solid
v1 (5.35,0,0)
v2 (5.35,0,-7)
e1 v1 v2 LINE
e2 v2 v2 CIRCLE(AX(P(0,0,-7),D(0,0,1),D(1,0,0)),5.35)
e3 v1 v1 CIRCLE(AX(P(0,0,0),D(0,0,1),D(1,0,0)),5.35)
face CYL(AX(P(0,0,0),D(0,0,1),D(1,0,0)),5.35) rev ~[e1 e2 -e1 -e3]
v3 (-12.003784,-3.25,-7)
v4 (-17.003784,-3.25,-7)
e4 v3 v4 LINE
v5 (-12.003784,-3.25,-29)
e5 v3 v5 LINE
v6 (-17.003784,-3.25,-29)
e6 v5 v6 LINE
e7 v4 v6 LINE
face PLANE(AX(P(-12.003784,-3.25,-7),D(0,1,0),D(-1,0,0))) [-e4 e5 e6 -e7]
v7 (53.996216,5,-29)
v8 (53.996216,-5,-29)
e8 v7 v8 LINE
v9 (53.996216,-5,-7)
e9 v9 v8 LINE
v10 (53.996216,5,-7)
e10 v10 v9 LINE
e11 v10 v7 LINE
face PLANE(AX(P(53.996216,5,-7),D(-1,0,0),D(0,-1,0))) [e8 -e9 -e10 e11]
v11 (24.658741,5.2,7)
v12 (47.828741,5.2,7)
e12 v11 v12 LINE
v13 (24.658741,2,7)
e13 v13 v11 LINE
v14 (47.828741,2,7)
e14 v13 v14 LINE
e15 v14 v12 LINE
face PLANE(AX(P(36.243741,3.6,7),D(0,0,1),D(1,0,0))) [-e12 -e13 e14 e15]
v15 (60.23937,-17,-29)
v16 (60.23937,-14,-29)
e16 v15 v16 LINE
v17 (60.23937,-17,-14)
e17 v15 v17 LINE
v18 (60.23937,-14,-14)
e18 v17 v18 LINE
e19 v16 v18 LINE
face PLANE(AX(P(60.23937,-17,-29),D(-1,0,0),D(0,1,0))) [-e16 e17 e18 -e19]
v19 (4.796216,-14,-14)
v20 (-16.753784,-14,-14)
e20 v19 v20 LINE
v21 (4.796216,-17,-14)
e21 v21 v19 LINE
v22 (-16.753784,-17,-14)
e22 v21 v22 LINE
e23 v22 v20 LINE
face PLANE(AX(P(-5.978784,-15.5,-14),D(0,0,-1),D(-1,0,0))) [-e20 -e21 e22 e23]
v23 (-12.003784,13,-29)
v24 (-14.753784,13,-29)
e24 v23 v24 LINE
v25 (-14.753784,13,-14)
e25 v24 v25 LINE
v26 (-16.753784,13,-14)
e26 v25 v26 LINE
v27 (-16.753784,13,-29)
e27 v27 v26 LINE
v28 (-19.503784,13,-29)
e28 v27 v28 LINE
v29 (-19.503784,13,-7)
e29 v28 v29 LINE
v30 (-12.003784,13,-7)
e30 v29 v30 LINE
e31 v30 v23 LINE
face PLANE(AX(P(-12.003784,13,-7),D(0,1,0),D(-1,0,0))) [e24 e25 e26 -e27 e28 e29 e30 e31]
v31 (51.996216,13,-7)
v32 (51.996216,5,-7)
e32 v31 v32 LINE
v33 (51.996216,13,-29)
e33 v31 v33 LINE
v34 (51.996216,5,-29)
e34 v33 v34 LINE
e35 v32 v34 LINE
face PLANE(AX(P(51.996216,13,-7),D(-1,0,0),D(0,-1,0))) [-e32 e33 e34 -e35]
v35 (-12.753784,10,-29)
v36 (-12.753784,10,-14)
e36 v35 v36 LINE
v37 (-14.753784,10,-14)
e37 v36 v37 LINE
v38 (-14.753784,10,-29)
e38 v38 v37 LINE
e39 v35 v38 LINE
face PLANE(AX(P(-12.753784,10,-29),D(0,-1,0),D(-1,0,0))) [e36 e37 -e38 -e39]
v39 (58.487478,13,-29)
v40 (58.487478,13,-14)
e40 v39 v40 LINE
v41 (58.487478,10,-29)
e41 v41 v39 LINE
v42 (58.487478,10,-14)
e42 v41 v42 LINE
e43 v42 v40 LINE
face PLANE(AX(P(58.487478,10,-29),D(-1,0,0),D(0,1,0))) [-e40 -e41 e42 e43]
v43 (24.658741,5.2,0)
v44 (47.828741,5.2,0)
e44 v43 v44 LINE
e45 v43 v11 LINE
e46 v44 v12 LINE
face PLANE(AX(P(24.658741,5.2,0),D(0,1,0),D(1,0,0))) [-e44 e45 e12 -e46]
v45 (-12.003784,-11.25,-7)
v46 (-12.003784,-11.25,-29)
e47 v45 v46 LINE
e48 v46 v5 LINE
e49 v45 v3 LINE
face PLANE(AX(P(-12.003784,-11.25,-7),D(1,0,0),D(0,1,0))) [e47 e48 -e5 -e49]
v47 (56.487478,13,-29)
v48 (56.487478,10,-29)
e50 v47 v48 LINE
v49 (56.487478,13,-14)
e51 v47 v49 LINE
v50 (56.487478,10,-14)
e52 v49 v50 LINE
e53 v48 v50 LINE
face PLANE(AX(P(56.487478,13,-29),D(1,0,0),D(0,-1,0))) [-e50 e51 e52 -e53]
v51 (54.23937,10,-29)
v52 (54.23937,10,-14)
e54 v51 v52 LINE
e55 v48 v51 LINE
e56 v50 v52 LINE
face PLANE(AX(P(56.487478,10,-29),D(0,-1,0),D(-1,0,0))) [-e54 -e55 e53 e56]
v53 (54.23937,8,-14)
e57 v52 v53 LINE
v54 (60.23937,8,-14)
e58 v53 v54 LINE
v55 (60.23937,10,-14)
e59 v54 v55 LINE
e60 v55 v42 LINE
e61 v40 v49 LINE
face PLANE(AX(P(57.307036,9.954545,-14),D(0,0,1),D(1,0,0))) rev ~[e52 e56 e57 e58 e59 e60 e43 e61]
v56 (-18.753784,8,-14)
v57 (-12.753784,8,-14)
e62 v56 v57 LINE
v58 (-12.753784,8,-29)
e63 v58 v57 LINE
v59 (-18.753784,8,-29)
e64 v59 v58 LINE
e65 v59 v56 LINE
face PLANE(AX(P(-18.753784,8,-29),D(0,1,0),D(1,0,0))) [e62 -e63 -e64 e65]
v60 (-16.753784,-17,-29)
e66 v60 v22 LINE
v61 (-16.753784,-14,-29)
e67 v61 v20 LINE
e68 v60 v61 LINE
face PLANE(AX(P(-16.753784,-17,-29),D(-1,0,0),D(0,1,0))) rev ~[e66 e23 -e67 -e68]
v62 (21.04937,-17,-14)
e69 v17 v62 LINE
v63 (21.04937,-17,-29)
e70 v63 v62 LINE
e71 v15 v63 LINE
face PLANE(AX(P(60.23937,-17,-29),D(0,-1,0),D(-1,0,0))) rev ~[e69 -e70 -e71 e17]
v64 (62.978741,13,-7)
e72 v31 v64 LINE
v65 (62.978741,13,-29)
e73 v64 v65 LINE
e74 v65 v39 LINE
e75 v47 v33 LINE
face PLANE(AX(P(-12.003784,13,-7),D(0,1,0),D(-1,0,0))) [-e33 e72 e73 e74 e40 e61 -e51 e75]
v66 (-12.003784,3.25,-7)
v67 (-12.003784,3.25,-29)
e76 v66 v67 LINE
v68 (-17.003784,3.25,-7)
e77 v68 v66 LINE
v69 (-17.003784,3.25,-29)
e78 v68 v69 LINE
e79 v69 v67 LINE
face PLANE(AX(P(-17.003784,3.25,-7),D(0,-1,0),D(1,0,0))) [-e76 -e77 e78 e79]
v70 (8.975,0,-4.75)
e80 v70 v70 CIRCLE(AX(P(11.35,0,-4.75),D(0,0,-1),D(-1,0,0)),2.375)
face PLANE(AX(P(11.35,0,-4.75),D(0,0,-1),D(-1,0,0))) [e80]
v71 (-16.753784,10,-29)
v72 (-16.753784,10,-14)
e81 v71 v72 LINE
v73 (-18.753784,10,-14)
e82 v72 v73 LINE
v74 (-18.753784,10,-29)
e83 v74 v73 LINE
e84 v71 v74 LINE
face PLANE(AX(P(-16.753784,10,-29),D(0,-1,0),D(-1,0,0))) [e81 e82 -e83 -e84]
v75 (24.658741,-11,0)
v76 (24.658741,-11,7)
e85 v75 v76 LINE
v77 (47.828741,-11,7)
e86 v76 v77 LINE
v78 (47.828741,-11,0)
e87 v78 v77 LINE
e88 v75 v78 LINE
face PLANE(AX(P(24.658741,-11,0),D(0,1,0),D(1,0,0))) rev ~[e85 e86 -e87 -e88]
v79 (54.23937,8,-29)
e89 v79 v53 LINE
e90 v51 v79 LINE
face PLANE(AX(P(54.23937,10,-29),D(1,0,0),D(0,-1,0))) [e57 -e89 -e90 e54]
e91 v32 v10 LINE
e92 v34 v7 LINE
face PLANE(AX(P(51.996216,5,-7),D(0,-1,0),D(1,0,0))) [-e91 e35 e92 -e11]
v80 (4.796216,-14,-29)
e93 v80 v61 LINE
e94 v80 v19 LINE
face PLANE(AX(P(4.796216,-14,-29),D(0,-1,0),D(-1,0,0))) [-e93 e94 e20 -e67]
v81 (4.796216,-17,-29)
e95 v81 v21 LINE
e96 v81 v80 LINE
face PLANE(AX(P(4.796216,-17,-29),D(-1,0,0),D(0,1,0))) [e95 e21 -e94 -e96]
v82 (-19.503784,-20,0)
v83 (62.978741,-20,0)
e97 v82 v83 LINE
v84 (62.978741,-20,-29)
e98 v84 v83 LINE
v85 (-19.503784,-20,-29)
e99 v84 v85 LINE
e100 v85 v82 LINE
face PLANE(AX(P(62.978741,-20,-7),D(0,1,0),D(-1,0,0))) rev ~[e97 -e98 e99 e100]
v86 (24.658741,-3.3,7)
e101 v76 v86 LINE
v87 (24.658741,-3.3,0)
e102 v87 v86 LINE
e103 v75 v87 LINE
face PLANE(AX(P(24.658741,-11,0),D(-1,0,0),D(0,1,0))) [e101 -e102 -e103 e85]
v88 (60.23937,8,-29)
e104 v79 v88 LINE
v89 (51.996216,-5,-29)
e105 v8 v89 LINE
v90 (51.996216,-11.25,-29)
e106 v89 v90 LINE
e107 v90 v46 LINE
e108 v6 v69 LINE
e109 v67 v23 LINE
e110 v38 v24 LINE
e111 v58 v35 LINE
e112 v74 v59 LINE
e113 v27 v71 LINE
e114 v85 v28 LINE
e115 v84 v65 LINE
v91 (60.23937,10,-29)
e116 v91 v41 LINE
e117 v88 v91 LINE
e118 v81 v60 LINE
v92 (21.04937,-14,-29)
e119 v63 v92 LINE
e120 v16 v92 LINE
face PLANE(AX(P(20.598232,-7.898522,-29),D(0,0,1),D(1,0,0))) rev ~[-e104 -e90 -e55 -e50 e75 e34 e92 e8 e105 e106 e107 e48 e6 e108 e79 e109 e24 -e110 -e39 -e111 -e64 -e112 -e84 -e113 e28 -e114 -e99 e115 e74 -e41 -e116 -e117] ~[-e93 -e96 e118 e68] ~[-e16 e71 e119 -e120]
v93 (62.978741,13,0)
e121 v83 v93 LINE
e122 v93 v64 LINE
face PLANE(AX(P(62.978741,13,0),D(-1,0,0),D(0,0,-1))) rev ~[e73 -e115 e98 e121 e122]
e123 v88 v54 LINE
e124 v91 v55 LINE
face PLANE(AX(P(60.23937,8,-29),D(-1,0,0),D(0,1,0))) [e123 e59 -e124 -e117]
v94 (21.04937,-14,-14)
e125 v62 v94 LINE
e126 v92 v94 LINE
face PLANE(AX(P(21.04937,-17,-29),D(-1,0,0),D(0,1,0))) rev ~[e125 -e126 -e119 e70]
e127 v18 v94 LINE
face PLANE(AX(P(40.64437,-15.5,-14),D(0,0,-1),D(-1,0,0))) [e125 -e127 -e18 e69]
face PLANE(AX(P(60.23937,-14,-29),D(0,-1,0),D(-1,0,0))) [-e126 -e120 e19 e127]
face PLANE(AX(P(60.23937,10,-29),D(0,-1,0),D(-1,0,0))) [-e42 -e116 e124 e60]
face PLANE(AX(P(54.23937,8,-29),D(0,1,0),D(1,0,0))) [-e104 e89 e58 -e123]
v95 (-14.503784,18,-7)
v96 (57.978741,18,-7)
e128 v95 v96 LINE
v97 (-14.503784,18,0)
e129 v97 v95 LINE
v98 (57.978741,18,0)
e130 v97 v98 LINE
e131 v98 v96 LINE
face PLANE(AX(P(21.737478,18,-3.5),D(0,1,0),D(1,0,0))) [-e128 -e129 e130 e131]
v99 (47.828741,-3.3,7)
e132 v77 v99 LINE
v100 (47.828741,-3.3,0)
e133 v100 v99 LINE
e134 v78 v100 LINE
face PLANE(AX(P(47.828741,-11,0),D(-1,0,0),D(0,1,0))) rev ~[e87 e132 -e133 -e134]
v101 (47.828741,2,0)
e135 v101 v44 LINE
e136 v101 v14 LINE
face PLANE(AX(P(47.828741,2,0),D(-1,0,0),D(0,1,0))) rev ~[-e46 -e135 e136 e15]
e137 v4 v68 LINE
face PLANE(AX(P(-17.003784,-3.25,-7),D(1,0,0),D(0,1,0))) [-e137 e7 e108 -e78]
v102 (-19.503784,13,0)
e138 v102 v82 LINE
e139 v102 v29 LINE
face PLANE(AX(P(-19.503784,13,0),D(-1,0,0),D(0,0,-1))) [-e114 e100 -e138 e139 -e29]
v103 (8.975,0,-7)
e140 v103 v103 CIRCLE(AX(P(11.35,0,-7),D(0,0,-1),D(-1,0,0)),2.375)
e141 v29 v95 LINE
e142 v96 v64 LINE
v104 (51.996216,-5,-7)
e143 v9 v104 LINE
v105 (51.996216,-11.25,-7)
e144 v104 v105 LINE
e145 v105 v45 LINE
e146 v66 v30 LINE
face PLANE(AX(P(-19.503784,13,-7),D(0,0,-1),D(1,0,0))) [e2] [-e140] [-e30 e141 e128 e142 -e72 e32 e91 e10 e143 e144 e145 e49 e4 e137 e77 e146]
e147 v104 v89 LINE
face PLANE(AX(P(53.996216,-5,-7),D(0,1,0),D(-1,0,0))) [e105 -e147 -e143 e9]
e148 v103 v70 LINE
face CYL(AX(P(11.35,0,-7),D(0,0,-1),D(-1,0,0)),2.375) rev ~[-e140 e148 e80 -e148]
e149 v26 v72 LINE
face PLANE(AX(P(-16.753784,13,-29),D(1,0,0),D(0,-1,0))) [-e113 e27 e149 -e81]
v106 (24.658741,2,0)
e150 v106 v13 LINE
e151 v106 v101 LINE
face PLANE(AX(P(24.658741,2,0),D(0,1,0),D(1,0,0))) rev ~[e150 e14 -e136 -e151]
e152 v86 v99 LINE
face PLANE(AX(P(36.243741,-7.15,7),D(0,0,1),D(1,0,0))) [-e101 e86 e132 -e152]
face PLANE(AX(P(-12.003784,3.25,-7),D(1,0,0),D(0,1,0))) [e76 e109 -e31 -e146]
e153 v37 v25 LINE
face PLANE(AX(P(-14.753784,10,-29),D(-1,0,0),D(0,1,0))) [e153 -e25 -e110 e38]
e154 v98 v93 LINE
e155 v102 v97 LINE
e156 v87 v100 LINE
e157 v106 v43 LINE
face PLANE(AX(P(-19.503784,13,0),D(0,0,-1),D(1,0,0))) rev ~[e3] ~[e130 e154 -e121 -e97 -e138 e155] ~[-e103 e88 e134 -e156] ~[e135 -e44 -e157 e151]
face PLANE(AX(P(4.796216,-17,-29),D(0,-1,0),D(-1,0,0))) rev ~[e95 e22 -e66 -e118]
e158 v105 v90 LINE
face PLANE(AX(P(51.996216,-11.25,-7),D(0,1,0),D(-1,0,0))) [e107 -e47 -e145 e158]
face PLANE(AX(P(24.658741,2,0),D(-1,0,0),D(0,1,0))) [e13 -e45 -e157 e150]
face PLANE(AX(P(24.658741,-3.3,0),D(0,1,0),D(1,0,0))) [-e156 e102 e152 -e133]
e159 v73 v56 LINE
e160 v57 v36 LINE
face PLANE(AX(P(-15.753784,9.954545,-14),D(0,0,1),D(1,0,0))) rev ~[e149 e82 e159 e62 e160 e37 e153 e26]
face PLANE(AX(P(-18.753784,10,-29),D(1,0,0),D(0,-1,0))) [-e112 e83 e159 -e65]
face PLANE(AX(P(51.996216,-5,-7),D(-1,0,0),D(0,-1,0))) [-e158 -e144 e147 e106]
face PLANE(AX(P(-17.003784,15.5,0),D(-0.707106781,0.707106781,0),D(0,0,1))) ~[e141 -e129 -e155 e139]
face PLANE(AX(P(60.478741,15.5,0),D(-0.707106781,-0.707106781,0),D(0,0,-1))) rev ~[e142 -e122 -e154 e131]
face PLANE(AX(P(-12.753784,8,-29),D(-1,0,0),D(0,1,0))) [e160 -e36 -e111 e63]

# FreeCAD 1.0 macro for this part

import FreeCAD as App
import Part
import Sketcher

V = App.Vector
Q = App.Units.Quantity


def edges_at(feature, points):
    """Names of the edges that pass closest to the given points."""
    edges = feature.Shape.Edges
    near = lambda p: min(range(len(edges)), key=lambda i: edges[i].distToShape(Part.Vertex(*p))[0])
    return sorted({f"Edge{near(p) + 1}" for p in points})


def add_polygon(sketch, points):
    """Adds a closed chain of lines whose ends are joined by coincident constraints."""
    first, n = sketch.GeometryCount, len(points)
    for a, b in zip(points, points[1:] + points[:1]):
        sketch.addGeometry(Part.LineSegment(App.Vector(*a, 0), App.Vector(*b, 0)), False)
    for i in range(n):
        sketch.addConstraint(Sketcher.Constraint("Coincident", first + i, 2, first + (i + 1) % n, 1))

doc = App.newDocument("Part")
body = doc.addObject("PartDesign::Body", "Body")

# Sketch on XY plane
sketch1 = body.newObject("Sketcher::SketchObject", "Sketch")
sketch1.AttachmentSupport = (doc.getObject("XY_Plane"), [""])
sketch1.MapMode = "FlatFace"
add_polygon(sketch1, [(-20, -20), (63, -20), (63, 13), (-20, 13)])  # lines 0-3
sketch1.addGeometry(Part.Circle(V(0, 0, 0), V(0, 0, 1), 5), False)  # 4
sketch1.addConstraint(Sketcher.Constraint("Horizontal", 0))
sketch1.addConstraint(Sketcher.Constraint("Vertical", 1))
sketch1.addConstraint(Sketcher.Constraint("Horizontal", 2))
sketch1.addConstraint(Sketcher.Constraint("Vertical", 3))
sketch1.addConstraint(Sketcher.Constraint("Coincident", 4, 3, -1, 1))
sketch1.addConstraint(Sketcher.Constraint("Diameter", 4, Q("10.7 mm")))
sketch1.addConstraint(Sketcher.Constraint("DistanceY", 1, 1, 1, 2, Q("33 mm")))
sketch1.addConstraint(Sketcher.Constraint("DistanceY", 0, 2, -1, 1, Q("20 mm")))
sketch1.addConstraint(Sketcher.Constraint("DistanceX", 0, 1, 0, 2, Q("82.482525 mm")))
sketch1.addConstraint(Sketcher.Constraint("DistanceX", -1, 1, 0, 2, Q("62.978741 mm")))
pad1 = body.newObject("PartDesign::Pad", "Pad")
pad1.Profile = sketch1
pad1.Length = 7
pad1.Reversed = True

# Sketch on XY plane
sketch2 = body.newObject("Sketcher::SketchObject", "Sketch001")
sketch2.AttachmentSupport = (doc.getObject("XY_Plane"), [""])
sketch2.MapMode = "FlatFace"
sketch2.AttachmentOffset = App.Placement(V(0, 0, -7), App.Rotation())
sketch2.addGeometry(Part.Circle(V(11.3, 0, 0), V(0, 0, 1), 2.4), False)
sketch2.addConstraint(Sketcher.Constraint("PointOnObject", 0, 3, -1))
sketch2.addConstraint(Sketcher.Constraint("Diameter", 0, Q("4.75 mm")))
sketch2.addConstraint(Sketcher.Constraint("DistanceX", -1, 1, 0, 3, Q("11.35 mm")))
pocket1 = body.newObject("PartDesign::Pocket", "Pocket")
pocket1.Profile = sketch2
pocket1.Length = 2.25
pocket1.Reversed = True

# Sketch on XY plane
sketch3 = body.newObject("Sketcher::SketchObject", "Sketch002")
sketch3.AttachmentSupport = (doc.getObject("XY_Plane"), [""])
sketch3.MapMode = "FlatFace"
sketch3.AttachmentOffset = App.Placement(V(0, 0, -7), App.Rotation())
add_polygon(sketch3, [(-12, 13), (-12, 3.2), (-17, 3.2), (-17, -3.2), (-12, -3.2), (-12, -11.2), (52, -11.2), (52, -5), (54, -5), (54, 5), (52, 5), (52, 13), (63, 13), (63, -20), (-19.5, -20), (-19.5, 13)])  # lines 0-15
sketch3.addConstraint(Sketcher.Constraint("Vertical", 0))
sketch3.addConstraint(Sketcher.Constraint("Horizontal", 1))
sketch3.addConstraint(Sketcher.Constraint("Vertical", 2))
sketch3.addConstraint(Sketcher.Constraint("Horizontal", 3))
sketch3.addConstraint(Sketcher.Constraint("Vertical", 4))
sketch3.addConstraint(Sketcher.Constraint("Horizontal", 5))
sketch3.addConstraint(Sketcher.Constraint("Vertical", 6))
sketch3.addConstraint(Sketcher.Constraint("Horizontal", 7))
sketch3.addConstraint(Sketcher.Constraint("Vertical", 8))
sketch3.addConstraint(Sketcher.Constraint("Horizontal", 9))
sketch3.addConstraint(Sketcher.Constraint("Vertical", 10))
sketch3.addConstraint(Sketcher.Constraint("Horizontal", 11))
sketch3.addConstraint(Sketcher.Constraint("Vertical", 12))
sketch3.addConstraint(Sketcher.Constraint("Horizontal", 13))
sketch3.addConstraint(Sketcher.Constraint("Vertical", 14))
sketch3.addConstraint(Sketcher.Constraint("Horizontal", 15))
sketch3.addConstraint(Sketcher.Constraint("Symmetric", 0, 2, 3, 2, -1))
sketch3.addConstraint(Sketcher.Constraint("Symmetric", 6, 2, 9, 2, -1))
sketch3.addConstraint(Sketcher.Constraint("Horizontal", 11, 2, 14, 2))
sketch3.addConstraint(Sketcher.Constraint("Equal", 4, 10))
sketch3.addConstraint(Sketcher.Constraint("DistanceX", 1, 2, 1, 1, Q("5 mm")))
sketch3.addConstraint(Sketcher.Constraint("DistanceX", 5, 1, 5, 2, Q("64 mm")))
sketch3.addConstraint(Sketcher.Constraint("DistanceX", 7, 1, 7, 2, Q("2 mm")))
sketch3.addConstraint(Sketcher.Constraint("DistanceY", 4, 2, 4, 1, Q("8 mm")))
sketch3.addConstraint(Sketcher.Constraint("DistanceY", 8, 1, 8, 2, Q("10 mm")))
sketch3.addConstraint(Sketcher.Constraint("DistanceY", 12, 2, 12, 1, Q("33 mm")))
sketch3.addConstraint(Sketcher.Constraint("DistanceX", 15, 1, 15, 2, Q("7.5 mm")))
sketch3.addConstraint(Sketcher.Constraint("DistanceY", 2, 2, 2, 1, Q("6.5 mm")))
sketch3.addConstraint(Sketcher.Constraint("DistanceX", 11, 1, 11, 2, Q("10.982525 mm")))
sketch3.addConstraint(Sketcher.Constraint("DistanceX", -1, 1, 11, 2, Q("62.978741 mm")))
pad2 = body.newObject("PartDesign::Pad", "Pad001")
pad2.Profile = sketch3
pad2.Length = 22
pad2.Reversed = True

# Sketch on XZ plane
sketch4 = body.newObject("Sketcher::SketchObject", "Sketch003")
sketch4.AttachmentSupport = (doc.getObject("XZ_Plane"), [""])
sketch4.MapMode = "FlatFace"
sketch4.AttachmentOffset = App.Placement(V(0, 0, -13), App.Rotation())
add_polygon(sketch4, [(-20, -7), (-20, 0), (63, 0), (63, -7)])  # lines 0-3
sketch4.addConstraint(Sketcher.Constraint("Vertical", 0))
sketch4.addConstraint(Sketcher.Constraint("Horizontal", 1))
sketch4.addConstraint(Sketcher.Constraint("Vertical", 2))
sketch4.addConstraint(Sketcher.Constraint("Horizontal", 3))
sketch4.addConstraint(Sketcher.Constraint("PointOnObject", 0, 2, -1))
sketch4.addConstraint(Sketcher.Constraint("DistanceY", 0, 1, 0, 2, Q("7 mm")))
sketch4.addConstraint(Sketcher.Constraint("DistanceX", 1, 1, 1, 2, Q("82.482525 mm")))
sketch4.addConstraint(Sketcher.Constraint("DistanceX", -1, 1, 1, 2, Q("62.978741 mm")))
pad3 = body.newObject("PartDesign::Pad", "Pad002")
pad3.Profile = sketch4
pad3.Length = 5
pad3.Reversed = True
doc.recompute()

chamfer = body.newObject("PartDesign::Chamfer", "Chamfer")
chamfer.Base = (pad3, edges_at(pad3, [(62.979, 18, -3.5), (-19.504, 18, -3.5)]))
chamfer.Size = 5

# Sketch on XY plane
sketch5 = body.newObject("Sketcher::SketchObject", "Sketch004")
sketch5.AttachmentSupport = (doc.getObject("XY_Plane"), [""])
sketch5.MapMode = "FlatFace"
sketch5.AttachmentOffset = App.Placement(V(0, 0, -29), App.Rotation())
add_polygon(sketch5, [(58.5, 10), (60.2, 10), (60.2, 8), (54.2, 8), (54.2, 10), (56.5, 10), (56.5, 13), (58.5, 13)])  # lines 0-7
add_polygon(sketch5, [(60.2, -14), (60.2, -17), (21, -17), (21, -14)])  # lines 8-11
add_polygon(sketch5, [(4.8, -14), (4.8, -17), (-16.8, -17), (-16.8, -14)])  # lines 12-15
add_polygon(sketch5, [(-16.8, 13), (-14.8, 13), (-14.8, 10), (-12.8, 10), (-12.8, 8), (-18.8, 8), (-18.8, 10), (-16.8, 10)])  # lines 16-23
sketch5.addConstraint(Sketcher.Constraint("Horizontal", 0))
sketch5.addConstraint(Sketcher.Constraint("Vertical", 1))
sketch5.addConstraint(Sketcher.Constraint("Horizontal", 2))
sketch5.addConstraint(Sketcher.Constraint("Vertical", 3))
sketch5.addConstraint(Sketcher.Constraint("Horizontal", 4))
sketch5.addConstraint(Sketcher.Constraint("Vertical", 5))
sketch5.addConstraint(Sketcher.Constraint("Horizontal", 6))
sketch5.addConstraint(Sketcher.Constraint("Vertical", 7))
sketch5.addConstraint(Sketcher.Constraint("Vertical", 8))
sketch5.addConstraint(Sketcher.Constraint("Horizontal", 9))
sketch5.addConstraint(Sketcher.Constraint("Vertical", 10))
sketch5.addConstraint(Sketcher.Constraint("Horizontal", 11))
sketch5.addConstraint(Sketcher.Constraint("Vertical", 12))
sketch5.addConstraint(Sketcher.Constraint("Horizontal", 13))
sketch5.addConstraint(Sketcher.Constraint("Vertical", 14))
sketch5.addConstraint(Sketcher.Constraint("Horizontal", 15))
sketch5.addConstraint(Sketcher.Constraint("Horizontal", 16))
sketch5.addConstraint(Sketcher.Constraint("Vertical", 17))
sketch5.addConstraint(Sketcher.Constraint("Horizontal", 18))
sketch5.addConstraint(Sketcher.Constraint("Vertical", 19))
sketch5.addConstraint(Sketcher.Constraint("Horizontal", 20))
sketch5.addConstraint(Sketcher.Constraint("Vertical", 21))
sketch5.addConstraint(Sketcher.Constraint("Horizontal", 22))
sketch5.addConstraint(Sketcher.Constraint("Vertical", 23))
sketch5.addConstraint(Sketcher.Constraint("Horizontal", 0, 2, 3, 2))
sketch5.addConstraint(Sketcher.Constraint("Horizontal", 9, 2, 12, 2))
sketch5.addConstraint(Sketcher.Constraint("Horizontal", 11, 2, 14, 2))
sketch5.addConstraint(Sketcher.Constraint("Horizontal", 6, 2, 16, 2))
sketch5.addConstraint(Sketcher.Constraint("Horizontal", 7, 2, 17, 2))
sketch5.addConstraint(Sketcher.Constraint("Horizontal", 2, 2, 19, 2))
sketch5.addConstraint(Sketcher.Constraint("Horizontal", 18, 2, 21, 2))
sketch5.addConstraint(Sketcher.Constraint("Vertical", 1, 2, 8, 2))
sketch5.addConstraint(Sketcher.Constraint("Vertical", 14, 2, 22, 2))
sketch5.addConstraint(Sketcher.Constraint("Equal", 6, 16))
sketch5.addConstraint(Sketcher.Constraint("Equal", 16, 18))
sketch5.addConstraint(Sketcher.Constraint("Equal", 2, 20))
sketch5.addConstraint(Sketcher.Constraint("Equal", 18, 22))
sketch5.addConstraint(Sketcher.Constraint("Equal", 22, 1))
sketch5.addConstraint(Sketcher.Constraint("Equal", 7, 8))
sketch5.addConstraint(Sketcher.Constraint("DistanceX", 2, 2, 2, 1, Q("6 mm")))
sketch5.addConstraint(Sketcher.Constraint("DistanceY", 5, 1, 5, 2, Q("3 mm")))
sketch5.addConstraint(Sketcher.Constraint("DistanceY", -1, 1, 0, 2, Q("10 mm")))
sketch5.addConstraint(Sketcher.Constraint("DistanceY", 8, 2, -1, 1, Q("17 mm")))
sketch5.addConstraint(Sketcher.Constraint("DistanceX", 9, 2, 9, 1, Q("39.19 mm")))
sketch5.addConstraint(Sketcher.Constraint("DistanceX", 13, 2, 13, 1, Q("21.55 mm")))
sketch5.addConstraint(Sketcher.Constraint("DistanceX", 0, 1, 0, 2, Q("1.751892 mm")))
sketch5.addConstraint(Sketcher.Constraint("DistanceX", -1, 1, 0, 2, Q("60.23937 mm")))
sketch5.addConstraint(Sketcher.Constraint("DistanceX", -1, 1, 12, 2, Q("4.796216 mm")))
pocket2 = body.newObject("PartDesign::Pocket", "Pocket001")
pocket2.Profile = sketch5
pocket2.Length = 15
pocket2.Reversed = True

# Sketch on XY plane
sketch6 = body.newObject("Sketcher::SketchObject", "Sketch005")
sketch6.AttachmentSupport = (doc.getObject("XY_Plane"), [""])
sketch6.MapMode = "FlatFace"
add_polygon(sketch6, [(24.7, -3.3), (24.7, -11), (47.8, -11), (47.8, -3.3)])  # lines 0-3
add_polygon(sketch6, [(24.7, 5.2), (24.7, 2), (47.8, 2), (47.8, 5.2)])  # lines 4-7
sketch6.addConstraint(Sketcher.Constraint("Vertical", 0))
sketch6.addConstraint(Sketcher.Constraint("Horizontal", 1))
sketch6.addConstraint(Sketcher.Constraint("Vertical", 2))
sketch6.addConstraint(Sketcher.Constraint("Horizontal", 3))
sketch6.addConstraint(Sketcher.Constraint("Vertical", 4))
sketch6.addConstraint(Sketcher.Constraint("Horizontal", 5))
sketch6.addConstraint(Sketcher.Constraint("Vertical", 6))
sketch6.addConstraint(Sketcher.Constraint("Horizontal", 7))
sketch6.addConstraint(Sketcher.Constraint("Vertical", 3, 2, 4, 2))
sketch6.addConstraint(Sketcher.Constraint("Vertical", 2, 2, 5, 2))
sketch6.addConstraint(Sketcher.Constraint("DistanceY", 0, 2, 0, 1, Q("7.7 mm")))
sketch6.addConstraint(Sketcher.Constraint("DistanceY", 4, 2, 4, 1, Q("3.2 mm")))
sketch6.addConstraint(Sketcher.Constraint("DistanceY", 0, 2, -1, 1, Q("11 mm")))
sketch6.addConstraint(Sketcher.Constraint("DistanceY", -1, 1, 4, 2, Q("2 mm")))
sketch6.addConstraint(Sketcher.Constraint("DistanceX", 1, 1, 1, 2, Q("23.17 mm")))
sketch6.addConstraint(Sketcher.Constraint("DistanceX", -1, 1, 0, 2, Q("24.658741 mm")))
pad4 = body.newObject("PartDesign::Pad", "Pad003")
pad4.Profile = sketch6
pad4.Length = 7

doc.recompute()
